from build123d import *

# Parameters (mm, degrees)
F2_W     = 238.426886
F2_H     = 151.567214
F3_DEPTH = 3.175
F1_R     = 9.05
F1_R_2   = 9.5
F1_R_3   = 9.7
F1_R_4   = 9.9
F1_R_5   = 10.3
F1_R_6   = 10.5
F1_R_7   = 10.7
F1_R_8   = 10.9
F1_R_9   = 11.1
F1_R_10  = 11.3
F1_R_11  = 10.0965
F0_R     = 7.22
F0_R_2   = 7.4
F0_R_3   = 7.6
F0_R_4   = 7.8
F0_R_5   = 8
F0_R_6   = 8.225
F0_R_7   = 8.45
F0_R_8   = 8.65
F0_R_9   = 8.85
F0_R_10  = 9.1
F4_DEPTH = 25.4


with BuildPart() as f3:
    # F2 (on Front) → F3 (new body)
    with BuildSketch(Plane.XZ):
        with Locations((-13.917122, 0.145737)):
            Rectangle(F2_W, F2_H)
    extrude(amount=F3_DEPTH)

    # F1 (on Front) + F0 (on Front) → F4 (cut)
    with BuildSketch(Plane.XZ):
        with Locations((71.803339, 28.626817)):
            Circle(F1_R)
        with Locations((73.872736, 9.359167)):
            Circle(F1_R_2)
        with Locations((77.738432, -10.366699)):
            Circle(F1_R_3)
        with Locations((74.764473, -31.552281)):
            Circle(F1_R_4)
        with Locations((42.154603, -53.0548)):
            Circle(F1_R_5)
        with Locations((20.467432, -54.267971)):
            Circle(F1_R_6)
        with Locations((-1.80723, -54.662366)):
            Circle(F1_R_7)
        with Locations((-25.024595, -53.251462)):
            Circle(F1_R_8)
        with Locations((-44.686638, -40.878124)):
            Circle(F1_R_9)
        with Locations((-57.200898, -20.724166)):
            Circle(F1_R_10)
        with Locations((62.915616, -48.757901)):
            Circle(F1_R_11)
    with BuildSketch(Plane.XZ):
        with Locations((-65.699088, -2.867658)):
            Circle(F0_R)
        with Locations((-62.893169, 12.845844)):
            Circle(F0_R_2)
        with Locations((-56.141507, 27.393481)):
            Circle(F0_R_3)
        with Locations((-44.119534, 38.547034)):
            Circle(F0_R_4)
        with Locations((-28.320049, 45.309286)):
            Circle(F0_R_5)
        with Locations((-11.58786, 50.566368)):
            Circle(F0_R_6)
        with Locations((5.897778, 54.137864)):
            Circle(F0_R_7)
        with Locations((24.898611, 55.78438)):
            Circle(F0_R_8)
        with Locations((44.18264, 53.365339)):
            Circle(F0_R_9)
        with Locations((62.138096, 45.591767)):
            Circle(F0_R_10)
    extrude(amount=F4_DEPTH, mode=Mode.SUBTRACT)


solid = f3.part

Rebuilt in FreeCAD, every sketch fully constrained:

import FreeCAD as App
import Part
import Sketcher

doc = App.newDocument("Part")
body = doc.addObject("PartDesign::Body", "Body")

# Sketch on XZ plane
sketch1 = body.newObject("Sketcher::SketchObject", "Sketch")
sketch1.AttachmentSupport = (doc.getObject("XZ_Plane"), [""])
sketch1.MapMode = "FlatFace"
sketch1.addGeometry([
    Part.LineSegment(App.Vector(-133, 76, 0), App.Vector(-133, -76, 0)),
    Part.LineSegment(App.Vector(-133, -76, 0), App.Vector(105, -76, 0)),
    Part.LineSegment(App.Vector(105, -76, 0), App.Vector(105, 76, 0)),
    Part.LineSegment(App.Vector(105, 76, 0), App.Vector(-133, 76, 0)),
], False)
sketch1.addConstraint([
    Sketcher.Constraint("Coincident", 0, 2, 1, 1),
    Sketcher.Constraint("Coincident", 1, 2, 2, 1),
    Sketcher.Constraint("Coincident", 2, 2, 3, 1),
    Sketcher.Constraint("Coincident", 3, 2, 0, 1),
    Sketcher.Constraint("Vertical", 0),
    Sketcher.Constraint("Horizontal", 1),
    Sketcher.Constraint("Vertical", 2),
    Sketcher.Constraint("Horizontal", 3),
    Sketcher.Constraint("DistanceX", 1, 1, 1, 2, 238.426886),
    Sketcher.Constraint("DistanceY", 0, 2, 0, 1, 151.567214),
    Sketcher.Constraint("DistanceY", 0, 2, -1, 1, 75.63787),
    Sketcher.Constraint("DistanceX", -1, 1, 1, 2, 105.296321),
])
pad1 = body.newObject("PartDesign::Pad", "Pad")
pad1.Profile = sketch1
pad1.Length = 3.175

# Sketch on XZ plane
sketch2 = body.newObject("Sketcher::SketchObject", "Sketch001")
sketch2.AttachmentSupport = (doc.getObject("XZ_Plane"), [""])
sketch2.MapMode = "FlatFace"
sketch2.addGeometry([
    Part.Circle(App.Vector(72, 29, 0), App.Vector(0, 0, 1), 9),  # 0
    Part.Circle(App.Vector(74, 9, 0), App.Vector(0, 0, 1), 10),  # 1
    Part.Circle(App.Vector(78, -10, 0), App.Vector(0, 0, 1), 10),  # 2
    Part.Circle(App.Vector(75, -32, 0), App.Vector(0, 0, 1), 10),  # 3
    Part.Circle(App.Vector(42, -53, 0), App.Vector(0, 0, 1), 10),  # 4
    Part.Circle(App.Vector(20, -54, 0), App.Vector(0, 0, 1), 10),  # 5
    Part.Circle(App.Vector(-2, -55, 0), App.Vector(0, 0, 1), 11),  # 6
    Part.Circle(App.Vector(-25, -53, 0), App.Vector(0, 0, 1), 11),  # 7
    Part.Circle(App.Vector(-45, -41, 0), App.Vector(0, 0, 1), 11),  # 8
    Part.Circle(App.Vector(-57, -21, 0), App.Vector(0, 0, 1), 11),  # 9
    Part.Circle(App.Vector(63, -49, 0), App.Vector(0, 0, 1), 10),  # 10
    Part.Circle(App.Vector(-66, -3, 0), App.Vector(0, 0, 1), 7),  # 11
    Part.Circle(App.Vector(-63, 13, 0), App.Vector(0, 0, 1), 7),  # 12
    Part.Circle(App.Vector(-56, 27, 0), App.Vector(0, 0, 1), 8),  # 13
    Part.Circle(App.Vector(-44, 39, 0), App.Vector(0, 0, 1), 8),  # 14
    Part.Circle(App.Vector(-28, 45, 0), App.Vector(0, 0, 1), 8),  # 15
    Part.Circle(App.Vector(-12, 51, 0), App.Vector(0, 0, 1), 8),  # 16
    Part.Circle(App.Vector(6, 54, 0), App.Vector(0, 0, 1), 8),  # 17
    Part.Circle(App.Vector(25, 56, 0), App.Vector(0, 0, 1), 9),  # 18
    Part.Circle(App.Vector(44, 53, 0), App.Vector(0, 0, 1), 9),  # 19
    Part.Circle(App.Vector(62, 46, 0), App.Vector(0, 0, 1), 9),  # 20
], False)
sketch2.addConstraint([
    Sketcher.Constraint("Diameter", 1, 19.0),
    Sketcher.Constraint("Diameter", 5, 21.0),
    Sketcher.Constraint("Diameter", 15, 16.0),
    Sketcher.Constraint("Diameter", 0, 18.1),
    Sketcher.Constraint("Diameter", 2, 19.4),
    Sketcher.Constraint("Diameter", 3, 19.8),
    Sketcher.Constraint("Diameter", 4, 20.6),
    Sketcher.Constraint("Diameter", 6, 21.4),
    Sketcher.Constraint("Diameter", 7, 21.8),
    Sketcher.Constraint("Diameter", 8, 22.2),
    Sketcher.Constraint("Diameter", 9, 22.6),
    Sketcher.Constraint("Diameter", 12, 14.8),
    Sketcher.Constraint("Diameter", 13, 15.2),
    Sketcher.Constraint("Diameter", 14, 15.6),
    Sketcher.Constraint("Diameter", 17, 16.9),
    Sketcher.Constraint("Diameter", 18, 17.3),
    Sketcher.Constraint("Diameter", 19, 17.7),
    Sketcher.Constraint("Diameter", 20, 18.2),
    Sketcher.Constraint("Diameter", 11, 14.44),
    Sketcher.Constraint("Diameter", 16, 16.45),
    Sketcher.Constraint("Diameter", 10, 20.193),
    Sketcher.Constraint("DistanceX", 5, 3, 2, 3, 57.271),
    Sketcher.Constraint("DistanceY", 2, 3, -1, 1, 10.366699),
    Sketcher.Constraint("DistanceY", 4, 3, -1, 1, 53.0548),
    Sketcher.Constraint("DistanceX", 9, 3, -1, 1, 57.200898),
    Sketcher.Constraint("DistanceY", 10, 3, -1, 1, 48.757901),
    Sketcher.Constraint("DistanceX", 7, 3, 4, 3, 67.179198),
    Sketcher.Constraint("DistanceY", 6, 3, 9, 3, 33.9382),
    Sketcher.Constraint("DistanceX", 9, 3, 4, 3, 99.355501),
    Sketcher.Constraint("DistanceY", 9, 3, 14, 3, 59.2712),
    Sketcher.Constraint("DistanceX", 19, 3, 0, 3, 27.620699),
    Sketcher.Constraint("DistanceX", 16, 3, 19, 3, 55.7705),
    Sketcher.Constraint("DistanceY", 1, 3, 20, 3, 36.2326),
    Sketcher.Constraint("DistanceX", -1, 1, 0, 3, 71.803339),
    Sketcher.Constraint("DistanceY", 3, 3, -1, 1, 31.552281),
    Sketcher.Constraint("DistanceX", -1, 1, 5, 3, 20.467432),
    Sketcher.Constraint("DistanceY", 5, 3, -1, 1, 54.267971),
    Sketcher.Constraint("DistanceX", 6, 3, -1, 1, 1.80723),
    Sketcher.Constraint("DistanceY", 7, 3, -1, 1, 53.251462),
    Sketcher.Constraint("DistanceX", 8, 3, -1, 1, 44.686638),
    Sketcher.Constraint("DistanceX", 11, 3, -1, 1, 65.699088),
    Sketcher.Constraint("DistanceY", 11, 3, -1, 1, 2.867658),
    Sketcher.Constraint("DistanceX", 12, 3, -1, 1, 62.893169),
    Sketcher.Constraint("DistanceY", -1, 1, 13, 3, 27.393481),
    Sketcher.Constraint("DistanceX", 15, 3, -1, 1, 28.320049),
    Sketcher.Constraint("DistanceX", -1, 1, 18, 3, 24.898611),
    Sketcher.Constraint("DistanceY", -1, 1, 18, 3, 55.78438),
    Sketcher.Constraint("DistanceY", -1, 1, 19, 3, 53.365339),
    Sketcher.Constraint("DistanceY", 1, 3, 0, 3, 19.26765),
    Sketcher.Constraint("DistanceX", 3, 3, 2, 3, 2.973959),
    Sketcher.Constraint("DistanceY", 5, 3, 1, 3, 63.627138),
    Sketcher.Constraint("DistanceY", 6, 3, 8, 3, 13.784242),
    Sketcher.Constraint("DistanceX", 10, 3, 1, 3, 10.95712),
    Sketcher.Constraint("DistanceY", 9, 3, 11, 3, 17.856508),
    Sketcher.Constraint("DistanceY", 9, 3, 12, 3, 33.57001),
    Sketcher.Constraint("DistanceX", 11, 3, 13, 3, 9.557581),
    Sketcher.Constraint("DistanceY", 9, 3, 15, 3, 66.033452),
    Sketcher.Constraint("DistanceY", 15, 3, 16, 3, 5.257082),
    Sketcher.Constraint("DistanceY", 14, 3, 17, 3, 15.59083),
    Sketcher.Constraint("DistanceX", 17, 3, 0, 3, 65.905561),
    Sketcher.Constraint("DistanceX", 20, 3, 1, 3, 11.73464),
    Sketcher.Constraint("DistanceX", -1, 1, 1, 3, 73.872736),
    Sketcher.Constraint("DistanceX", 14, 3, -1, 1, 44.119534),
])
pocket1 = body.newObject("PartDesign::Pocket", "Pocket")
pocket1.Profile = sketch2
pocket1.Length = 25.4
pocket1.Reversed = True

doc.recompute()
